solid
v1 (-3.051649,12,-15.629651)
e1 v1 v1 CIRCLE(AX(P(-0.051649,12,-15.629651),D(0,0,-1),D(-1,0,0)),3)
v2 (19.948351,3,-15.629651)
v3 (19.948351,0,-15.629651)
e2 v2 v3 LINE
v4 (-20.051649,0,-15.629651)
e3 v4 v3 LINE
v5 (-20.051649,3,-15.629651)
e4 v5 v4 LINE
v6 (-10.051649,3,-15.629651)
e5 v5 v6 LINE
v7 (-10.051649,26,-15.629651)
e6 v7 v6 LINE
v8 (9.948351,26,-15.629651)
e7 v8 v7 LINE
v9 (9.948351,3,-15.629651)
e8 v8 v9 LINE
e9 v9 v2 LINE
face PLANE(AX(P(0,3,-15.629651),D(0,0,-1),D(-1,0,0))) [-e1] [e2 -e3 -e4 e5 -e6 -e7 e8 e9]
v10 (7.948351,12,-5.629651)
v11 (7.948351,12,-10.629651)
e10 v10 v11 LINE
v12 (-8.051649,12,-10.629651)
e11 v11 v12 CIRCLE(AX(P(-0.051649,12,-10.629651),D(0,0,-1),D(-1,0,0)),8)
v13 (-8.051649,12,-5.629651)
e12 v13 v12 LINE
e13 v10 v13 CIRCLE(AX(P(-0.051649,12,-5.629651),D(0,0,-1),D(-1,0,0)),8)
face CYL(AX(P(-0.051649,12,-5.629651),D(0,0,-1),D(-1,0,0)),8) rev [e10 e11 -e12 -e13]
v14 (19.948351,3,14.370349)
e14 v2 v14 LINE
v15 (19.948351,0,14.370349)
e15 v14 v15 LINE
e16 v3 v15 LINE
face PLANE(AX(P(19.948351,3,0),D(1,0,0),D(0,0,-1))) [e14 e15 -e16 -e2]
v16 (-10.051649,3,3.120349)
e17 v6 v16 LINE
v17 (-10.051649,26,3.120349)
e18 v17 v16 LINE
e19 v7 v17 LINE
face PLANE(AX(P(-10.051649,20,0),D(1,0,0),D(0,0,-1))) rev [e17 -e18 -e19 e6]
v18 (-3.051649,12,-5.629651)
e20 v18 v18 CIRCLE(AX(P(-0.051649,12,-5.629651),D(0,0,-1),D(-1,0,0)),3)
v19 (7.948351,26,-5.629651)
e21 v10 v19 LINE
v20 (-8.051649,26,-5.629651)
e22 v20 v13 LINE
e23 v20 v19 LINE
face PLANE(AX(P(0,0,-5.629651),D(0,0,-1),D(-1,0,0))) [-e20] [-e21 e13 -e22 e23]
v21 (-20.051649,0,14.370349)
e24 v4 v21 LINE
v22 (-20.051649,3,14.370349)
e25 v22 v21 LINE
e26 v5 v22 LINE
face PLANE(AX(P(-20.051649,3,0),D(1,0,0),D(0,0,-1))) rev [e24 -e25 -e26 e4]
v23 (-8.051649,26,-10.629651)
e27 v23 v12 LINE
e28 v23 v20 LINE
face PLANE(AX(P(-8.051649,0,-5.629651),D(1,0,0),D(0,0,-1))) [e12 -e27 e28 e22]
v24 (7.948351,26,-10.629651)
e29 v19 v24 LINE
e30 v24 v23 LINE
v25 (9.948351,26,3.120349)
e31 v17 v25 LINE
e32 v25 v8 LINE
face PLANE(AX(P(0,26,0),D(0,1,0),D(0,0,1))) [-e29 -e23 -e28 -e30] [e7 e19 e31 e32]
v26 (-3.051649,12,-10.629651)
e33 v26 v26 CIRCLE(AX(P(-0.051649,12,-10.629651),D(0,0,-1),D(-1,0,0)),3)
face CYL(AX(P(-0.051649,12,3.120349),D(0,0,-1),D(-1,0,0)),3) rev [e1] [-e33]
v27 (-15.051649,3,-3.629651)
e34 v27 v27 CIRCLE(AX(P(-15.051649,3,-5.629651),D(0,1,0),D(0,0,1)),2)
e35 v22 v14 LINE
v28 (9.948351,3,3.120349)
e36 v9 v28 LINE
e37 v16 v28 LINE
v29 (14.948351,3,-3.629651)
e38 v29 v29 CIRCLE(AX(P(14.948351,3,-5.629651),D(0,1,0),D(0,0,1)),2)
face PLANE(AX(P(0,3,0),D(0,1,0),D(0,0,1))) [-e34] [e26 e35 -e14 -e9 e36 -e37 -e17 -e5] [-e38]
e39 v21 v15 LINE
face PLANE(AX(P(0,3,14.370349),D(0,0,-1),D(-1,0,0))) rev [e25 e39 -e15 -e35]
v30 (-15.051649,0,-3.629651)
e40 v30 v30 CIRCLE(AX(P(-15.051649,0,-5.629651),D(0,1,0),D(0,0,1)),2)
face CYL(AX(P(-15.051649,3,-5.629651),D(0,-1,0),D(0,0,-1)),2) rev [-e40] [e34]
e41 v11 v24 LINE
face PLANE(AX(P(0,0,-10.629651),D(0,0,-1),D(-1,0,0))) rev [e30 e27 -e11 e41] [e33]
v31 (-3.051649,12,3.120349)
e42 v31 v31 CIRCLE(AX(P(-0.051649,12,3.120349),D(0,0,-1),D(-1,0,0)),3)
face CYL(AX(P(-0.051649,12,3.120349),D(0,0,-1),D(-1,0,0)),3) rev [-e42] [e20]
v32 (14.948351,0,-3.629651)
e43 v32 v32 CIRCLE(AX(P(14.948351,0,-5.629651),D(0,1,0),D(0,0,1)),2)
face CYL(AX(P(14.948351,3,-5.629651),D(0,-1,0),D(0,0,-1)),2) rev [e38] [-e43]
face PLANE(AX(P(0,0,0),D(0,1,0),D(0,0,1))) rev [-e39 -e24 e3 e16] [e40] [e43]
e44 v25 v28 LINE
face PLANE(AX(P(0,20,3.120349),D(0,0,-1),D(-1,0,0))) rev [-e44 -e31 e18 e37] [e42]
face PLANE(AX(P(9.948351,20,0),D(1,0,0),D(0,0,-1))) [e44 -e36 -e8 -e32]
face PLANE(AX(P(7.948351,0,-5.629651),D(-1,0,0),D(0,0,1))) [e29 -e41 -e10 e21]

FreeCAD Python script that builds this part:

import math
import FreeCAD as App
import Part
import Sketcher
from FreeCAD import Vector
Q = App.Units.Quantity


def add_polygon(sketch, points):
    """Adds a closed chain of lines whose ends are joined by coincident constraints."""
    first, n = sketch.GeometryCount, len(points)
    for a, b in zip(points, points[1:] + points[:1]):
        sketch.addGeometry(Part.LineSegment(App.Vector(*a, 0), App.Vector(*b, 0)), False)
    for i in range(n):
        sketch.addConstraint(Sketcher.Constraint("Coincident", first + i, 2, first + (i + 1) % n, 1))

doc = App.newDocument("Part")
body = doc.addObject("PartDesign::Body", "Body")

# Sketch on XZ plane
sketch1 = doc.addObject("Sketcher::SketchObject", "Sketch")
body.addObject(sketch1)
sketch1.AttachmentSupport = (doc.XZ_Plane, [""])
sketch1.MapMode = "FlatFace"
add_polygon(sketch1, [(-20.1, 14.4), (19.9, 14.4), (19.9, -15.6), (-20.1, -15.6)])  # lines 0-3
sketch1.addGeometry(Part.Circle(Vector(14.9, -5.6, 0), Vector(0, 0, 1), 2), False)  # 4
sketch1.addGeometry(Part.Circle(Vector(-15.1, -5.6, 0), Vector(0, 0, 1), 2), False)  # 5
sketch1.addConstraint([
    Sketcher.Constraint("Horizontal", 0),
    Sketcher.Constraint("Vertical", 1),
    Sketcher.Constraint("Horizontal", 2),
    Sketcher.Constraint("Vertical", 3),
    Sketcher.Constraint("Equal", 4, 5),
    Sketcher.Constraint("Horizontal", 4, 3, 5, 3),
    Sketcher.Constraint("Diameter", 4, Q("4 mm")),
    Sketcher.Constraint("DistanceX", 0, 1, 0, 2, Q("40 mm")),
    Sketcher.Constraint("DistanceY", 1, 2, 1, 1, Q("30 mm")),
    Sketcher.Constraint("DistanceX", 5, 3, 4, 3, Q("30 mm")),
    Sketcher.Constraint("DistanceX", 4, 3, 0, 2, Q("5 mm")),
    Sketcher.Constraint("DistanceY", 4, 3, 0, 2, Q("20 mm")),
    Sketcher.Constraint("DistanceX", -1, 1, 4, 3, Q("14.948351 mm")),
    Sketcher.Constraint("DistanceY", 4, 3, -1, 1, Q("5.629651 mm")),
])
pad1 = doc.addObject("PartDesign::Pad", "Pad")
body.addObject(pad1)
pad1.Profile = sketch1
pad1.Length = 3
pad1.Reversed = True

# Sketch on XZ plane
sketch2 = doc.addObject("Sketcher::SketchObject", "Sketch001")
body.addObject(sketch2)
sketch2.AttachmentSupport = (doc.XZ_Plane, [""])
sketch2.MapMode = "FlatFace"
sketch2.AttachmentOffset = App.Placement(Vector(0, 0, -3), App.Rotation())
add_polygon(sketch2, [(-10, 3), (10, 3), (10, -16), (-10, -16)])  # lines 0-3
sketch2.addConstraint([
    Sketcher.Constraint("Horizontal", 0),
    Sketcher.Constraint("Vertical", 1),
    Sketcher.Constraint("Horizontal", 2),
    Sketcher.Constraint("Vertical", 3),
    Sketcher.Constraint("DistanceX", 0, 1, 0, 2, Q("20 mm")),
    Sketcher.Constraint("DistanceY", 1, 2, 1, 1, Q("18.75 mm")),
    Sketcher.Constraint("DistanceX", -1, 1, 0, 2, Q("9.948351 mm")),
    Sketcher.Constraint("DistanceY", -1, 1, 0, 2, Q("3.120349 mm")),
])
pad2 = doc.addObject("PartDesign::Pad", "Pad001")
body.addObject(pad2)
pad2.Profile = sketch2
pad2.Length = 17
pad2.Reversed = True

# Sketch on XY plane
sketch3 = doc.addObject("Sketcher::SketchObject", "Sketch002")
body.addObject(sketch3)
sketch3.AttachmentSupport = (doc.XY_Plane, [""])
sketch3.MapMode = "FlatFace"
sketch3.AttachmentOffset = App.Placement(Vector(0, 0, -10.629651), App.Rotation())
sketch3.addGeometry([
    Part.LineSegment(Vector(-8, 20, 0), Vector(8, 20, 0)),
    Part.LineSegment(Vector(8, 20, 0), Vector(8, 12, 0)),
    Part.ArcOfCircle(Part.Circle(Vector(0, 12, 0), Vector(0, 0, 1), 8), math.radians(180), math.radians(360)),
    Part.LineSegment(Vector(-8, 12, 0), Vector(-8, 20, 0)),
], False)
sketch3.addConstraint([
    Sketcher.Constraint("Coincident", 0, 2, 1, 1),
    Sketcher.Constraint("Tangent", 1, 2, 2, 2),
    Sketcher.Constraint("Tangent", 2, 1, 3, 1),
    Sketcher.Constraint("Coincident", 3, 2, 0, 1),
    Sketcher.Constraint("Horizontal", 0),
    Sketcher.Constraint("Vertical", 1),
    Sketcher.Constraint("Vertical", 3),
    Sketcher.Constraint("Radius", 2, Q("8 mm")),
    Sketcher.Constraint("DistanceY", 1, 2, 1, 1, Q("8 mm")),
    Sketcher.Constraint("DistanceY", -1, 1, 2, 3, Q("12 mm")),
    Sketcher.Constraint("DistanceX", 2, 3, -1, 1, Q("0.051649 mm")),
])
pocket1 = doc.addObject("PartDesign::Pocket", "Pocket")
body.addObject(pocket1)
pocket1.Profile = sketch3
pocket1.Length = 5
pocket1.Reversed = True

# Sketch on XY plane
sketch4 = doc.addObject("Sketcher::SketchObject", "Sketch003")
body.addObject(sketch4)
sketch4.AttachmentSupport = (doc.XY_Plane, [""])
sketch4.MapMode = "FlatFace"
sketch4.AttachmentOffset = App.Placement(Vector(0, 0, -15.629651), App.Rotation())
sketch4.addGeometry([
    Part.ArcOfCircle(Part.Circle(Vector(-0.1, 12, 0), Vector(0, 0, 1), 3), math.radians(45), math.radians(135)),  # 0
    Part.ArcOfCircle(Part.Circle(Vector(-0.1, 12, 0), Vector(0, 0, 1), 3), math.radians(-45), math.radians(45)),  # 1
    Part.ArcOfCircle(Part.Circle(Vector(-0.1, 12, 0), Vector(0, 0, 1), 3), math.radians(-135), math.radians(-45)),  # 2
    Part.ArcOfCircle(Part.Circle(Vector(-0.1, 12, 0), Vector(0, 0, 1), 3), math.radians(-180), math.radians(-135)),  # 3
    Part.ArcOfCircle(Part.Circle(Vector(-0.1, 12, 0), Vector(0, 0, 1), 3), math.radians(135), math.radians(180)),  # 4
], False)
sketch4.addConstraint([
    Sketcher.Constraint("Tangent", 0, 1, 1, 2),
    Sketcher.Constraint("Tangent", 1, 1, 2, 2),
    Sketcher.Constraint("Tangent", 2, 1, 3, 2),
    Sketcher.Constraint("Tangent", 3, 1, 4, 2),
    Sketcher.Constraint("Tangent", 4, 1, 0, 2),
    Sketcher.Constraint("Coincident", 2, 3, 0, 3),
    Sketcher.Constraint("Horizontal", 1, 1, 2, 1),
    Sketcher.Constraint("Horizontal", 4, 3, 3, 1),
    Sketcher.Constraint("Horizontal", 0, 1, 4, 1),
    Sketcher.Constraint("Vertical", 0, 1, 1, 1),
    Sketcher.Constraint("Radius", 0, Q("3 mm")),
    Sketcher.Constraint("DistanceY", -1, 1, 0, 3, Q("12 mm")),
    Sketcher.Constraint("DistanceX", 0, 3, -1, 1, Q("0.051649 mm")),
    Sketcher.Constraint("DistanceX", -1, 1, 0, 1, Q("2.069671 mm")),
])
pocket2 = doc.addObject("PartDesign::Pocket", "Pocket001")
body.addObject(pocket2)
pocket2.Profile = sketch4
pocket2.Length = 18.75
pocket2.Reversed = True

# Sketch on XZ plane
sketch5 = doc.addObject("Sketcher::SketchObject", "Sketch004")
body.addObject(sketch5)
sketch5.AttachmentSupport = (doc.XZ_Plane, [""])
sketch5.MapMode = "FlatFace"
sketch5.AttachmentOffset = App.Placement(Vector(0, 0, -20), App.Rotation())
add_polygon(sketch5, [(-10, -16), (-10, 3), (10, 3), (10, -16)])  # lines 0-3
add_polygon(sketch5, [(8, -6), (-8, -6), (-8, -11), (8, -11)])  # lines 4-7
sketch5.addConstraint([
    Sketcher.Constraint("Vertical", 0),
    Sketcher.Constraint("Horizontal", 1),
    Sketcher.Constraint("Vertical", 2),
    Sketcher.Constraint("Horizontal", 3),
    Sketcher.Constraint("Horizontal", 4),
    Sketcher.Constraint("Vertical", 5),
    Sketcher.Constraint("Horizontal", 6),
    Sketcher.Constraint("Vertical", 7),
    Sketcher.Constraint("DistanceX", 1, 1, 1, 2, Q("20 mm")),
    Sketcher.Constraint("DistanceX", 4, 2, 4, 1, Q("16 mm")),
    Sketcher.Constraint("DistanceY", 5, 2, 5, 1, Q("5 mm")),
    Sketcher.Constraint("DistanceX", 0, 2, 4, 2, Q("2 mm")),
    Sketcher.Constraint("DistanceY", 3, 2, 4, 2, Q("10 mm")),
    Sketcher.Constraint("DistanceY", 0, 1, 0, 2, Q("18.75 mm")),
    Sketcher.Constraint("DistanceX", 0, 2, -1, 1, Q("10.051649 mm")),
    Sketcher.Constraint("DistanceY", -1, 1, 0, 2, Q("3.120349 mm")),
])
pad3 = doc.addObject("PartDesign::Pad", "Pad002")
body.addObject(pad3)
pad3.Profile = sketch5
pad3.Length = 6
pad3.Reversed = True

doc.recompute()
